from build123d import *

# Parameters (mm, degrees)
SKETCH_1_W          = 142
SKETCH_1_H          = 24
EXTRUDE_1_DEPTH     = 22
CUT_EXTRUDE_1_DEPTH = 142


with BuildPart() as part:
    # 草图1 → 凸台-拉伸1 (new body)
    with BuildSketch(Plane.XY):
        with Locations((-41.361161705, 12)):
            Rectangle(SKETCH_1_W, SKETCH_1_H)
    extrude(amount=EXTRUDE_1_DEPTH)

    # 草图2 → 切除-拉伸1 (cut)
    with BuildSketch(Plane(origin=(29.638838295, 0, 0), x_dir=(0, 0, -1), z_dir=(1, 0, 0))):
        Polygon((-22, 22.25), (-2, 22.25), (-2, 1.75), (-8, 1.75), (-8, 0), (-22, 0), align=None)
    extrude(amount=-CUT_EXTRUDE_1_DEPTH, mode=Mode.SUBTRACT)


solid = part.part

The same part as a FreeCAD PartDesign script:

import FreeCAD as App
import Part
import Sketcher

V = App.Vector

doc = App.newDocument("Part")
body = doc.addObject("PartDesign::Body", "Body")

sketch1 = doc.addObject("Sketcher::SketchObject", "Sketch")
body.addObject(sketch1)
sketch1.AttachmentSupport = (doc.XY_Plane, [""])
sketch1.MapMode = "FlatFace"
sketch1.addGeometry(Part.LineSegment(V(-112.361162, 24, 0), V(-112.361162, 0, 0)), False)
sketch1.addGeometry(Part.LineSegment(V(-112.361162, 0, 0), V(29.638838, 0, 0)), False)
sketch1.addGeometry(Part.LineSegment(V(29.638838, 0, 0), V(29.638838, 24, 0)), False)
sketch1.addGeometry(Part.LineSegment(V(29.638838, 24, 0), V(-112.361162, 24, 0)), False)
sketch1.addConstraint(Sketcher.Constraint("Coincident", 0, 2, 1, 1))
sketch1.addConstraint(Sketcher.Constraint("Coincident", 1, 2, 2, 1))
sketch1.addConstraint(Sketcher.Constraint("Coincident", 2, 2, 3, 1))
sketch1.addConstraint(Sketcher.Constraint("Coincident", 3, 2, 0, 1))
sketch1.addConstraint(Sketcher.Constraint("Vertical", 0))
sketch1.addConstraint(Sketcher.Constraint("Horizontal", 1))
sketch1.addConstraint(Sketcher.Constraint("Vertical", 2))
sketch1.addConstraint(Sketcher.Constraint("Horizontal", 3))
sketch1.addConstraint(Sketcher.Constraint("PointOnObject", 0, 2, -1))
sketch1.addConstraint(Sketcher.Constraint("DistanceX", 1, 1, 1, 2, 142.0))
sketch1.addConstraint(Sketcher.Constraint("DistanceY", 0, 2, 0, 1, 24.0))
sketch1.addConstraint(Sketcher.Constraint("DistanceX", 0, 2, -1, 1, 112.361162))
pad1 = doc.addObject("PartDesign::Pad", "Pad")
body.addObject(pad1)
pad1.Profile = sketch1
pad1.Length = 22

sketch2 = doc.addObject("Sketcher::SketchObject", "Sketch001")
body.addObject(sketch2)
sketch2.AttachmentSupport = (doc.YZ_Plane, [""])
sketch2.MapMode = "FlatFace"
sketch2.AttachmentOffset = App.Placement(V(0, 0, 29.638838), App.Rotation())
sketch2.addGeometry(Part.LineSegment(V(22.25, 2, 0), V(22.25, 22, 0)), False)
sketch2.addGeometry(Part.LineSegment(V(22.25, 22, 0), V(0, 22, 0)), False)
sketch2.addGeometry(Part.LineSegment(V(0, 22, 0), V(0, 8, 0)), False)
sketch2.addGeometry(Part.LineSegment(V(0, 8, 0), V(1.75, 8, 0)), False)
sketch2.addGeometry(Part.LineSegment(V(1.75, 8, 0), V(1.75, 2, 0)), False)
sketch2.addGeometry(Part.LineSegment(V(1.75, 2, 0), V(22.25, 2, 0)), False)
sketch2.addConstraint(Sketcher.Constraint("Coincident", 0, 2, 1, 1))
sketch2.addConstraint(Sketcher.Constraint("Coincident", 1, 2, 2, 1))
sketch2.addConstraint(Sketcher.Constraint("Coincident", 2, 2, 3, 1))
sketch2.addConstraint(Sketcher.Constraint("Coincident", 3, 2, 4, 1))
sketch2.addConstraint(Sketcher.Constraint("Coincident", 4, 2, 5, 1))
sketch2.addConstraint(Sketcher.Constraint("Coincident", 5, 2, 0, 1))
sketch2.addConstraint(Sketcher.Constraint("Vertical", 0))
sketch2.addConstraint(Sketcher.Constraint("Horizontal", 1))
sketch2.addConstraint(Sketcher.Constraint("Vertical", 2))
sketch2.addConstraint(Sketcher.Constraint("Horizontal", 3))
sketch2.addConstraint(Sketcher.Constraint("Vertical", 4))
sketch2.addConstraint(Sketcher.Constraint("Horizontal", 5))
sketch2.addConstraint(Sketcher.Constraint("PointOnObject", 1, 2, -2))
sketch2.addConstraint(Sketcher.Constraint("DistanceY", 0, 1, 0, 2, 20.0))
sketch2.addConstraint(Sketcher.Constraint("DistanceY", 2, 2, 2, 1, 14.0))
sketch2.addConstraint(Sketcher.Constraint("DistanceX", 5, 1, 5, 2, 20.5))
sketch2.addConstraint(Sketcher.Constraint("DistanceY", -1, 1, 0, 2, 22.0))
sketch2.addConstraint(Sketcher.Constraint("DistanceX", 1, 2, 1, 1, 22.25))
pocket1 = doc.addObject("PartDesign::Pocket", "Pocket")
body.addObject(pocket1)
pocket1.Profile = sketch2
pocket1.Length = 142

doc.recompute()
